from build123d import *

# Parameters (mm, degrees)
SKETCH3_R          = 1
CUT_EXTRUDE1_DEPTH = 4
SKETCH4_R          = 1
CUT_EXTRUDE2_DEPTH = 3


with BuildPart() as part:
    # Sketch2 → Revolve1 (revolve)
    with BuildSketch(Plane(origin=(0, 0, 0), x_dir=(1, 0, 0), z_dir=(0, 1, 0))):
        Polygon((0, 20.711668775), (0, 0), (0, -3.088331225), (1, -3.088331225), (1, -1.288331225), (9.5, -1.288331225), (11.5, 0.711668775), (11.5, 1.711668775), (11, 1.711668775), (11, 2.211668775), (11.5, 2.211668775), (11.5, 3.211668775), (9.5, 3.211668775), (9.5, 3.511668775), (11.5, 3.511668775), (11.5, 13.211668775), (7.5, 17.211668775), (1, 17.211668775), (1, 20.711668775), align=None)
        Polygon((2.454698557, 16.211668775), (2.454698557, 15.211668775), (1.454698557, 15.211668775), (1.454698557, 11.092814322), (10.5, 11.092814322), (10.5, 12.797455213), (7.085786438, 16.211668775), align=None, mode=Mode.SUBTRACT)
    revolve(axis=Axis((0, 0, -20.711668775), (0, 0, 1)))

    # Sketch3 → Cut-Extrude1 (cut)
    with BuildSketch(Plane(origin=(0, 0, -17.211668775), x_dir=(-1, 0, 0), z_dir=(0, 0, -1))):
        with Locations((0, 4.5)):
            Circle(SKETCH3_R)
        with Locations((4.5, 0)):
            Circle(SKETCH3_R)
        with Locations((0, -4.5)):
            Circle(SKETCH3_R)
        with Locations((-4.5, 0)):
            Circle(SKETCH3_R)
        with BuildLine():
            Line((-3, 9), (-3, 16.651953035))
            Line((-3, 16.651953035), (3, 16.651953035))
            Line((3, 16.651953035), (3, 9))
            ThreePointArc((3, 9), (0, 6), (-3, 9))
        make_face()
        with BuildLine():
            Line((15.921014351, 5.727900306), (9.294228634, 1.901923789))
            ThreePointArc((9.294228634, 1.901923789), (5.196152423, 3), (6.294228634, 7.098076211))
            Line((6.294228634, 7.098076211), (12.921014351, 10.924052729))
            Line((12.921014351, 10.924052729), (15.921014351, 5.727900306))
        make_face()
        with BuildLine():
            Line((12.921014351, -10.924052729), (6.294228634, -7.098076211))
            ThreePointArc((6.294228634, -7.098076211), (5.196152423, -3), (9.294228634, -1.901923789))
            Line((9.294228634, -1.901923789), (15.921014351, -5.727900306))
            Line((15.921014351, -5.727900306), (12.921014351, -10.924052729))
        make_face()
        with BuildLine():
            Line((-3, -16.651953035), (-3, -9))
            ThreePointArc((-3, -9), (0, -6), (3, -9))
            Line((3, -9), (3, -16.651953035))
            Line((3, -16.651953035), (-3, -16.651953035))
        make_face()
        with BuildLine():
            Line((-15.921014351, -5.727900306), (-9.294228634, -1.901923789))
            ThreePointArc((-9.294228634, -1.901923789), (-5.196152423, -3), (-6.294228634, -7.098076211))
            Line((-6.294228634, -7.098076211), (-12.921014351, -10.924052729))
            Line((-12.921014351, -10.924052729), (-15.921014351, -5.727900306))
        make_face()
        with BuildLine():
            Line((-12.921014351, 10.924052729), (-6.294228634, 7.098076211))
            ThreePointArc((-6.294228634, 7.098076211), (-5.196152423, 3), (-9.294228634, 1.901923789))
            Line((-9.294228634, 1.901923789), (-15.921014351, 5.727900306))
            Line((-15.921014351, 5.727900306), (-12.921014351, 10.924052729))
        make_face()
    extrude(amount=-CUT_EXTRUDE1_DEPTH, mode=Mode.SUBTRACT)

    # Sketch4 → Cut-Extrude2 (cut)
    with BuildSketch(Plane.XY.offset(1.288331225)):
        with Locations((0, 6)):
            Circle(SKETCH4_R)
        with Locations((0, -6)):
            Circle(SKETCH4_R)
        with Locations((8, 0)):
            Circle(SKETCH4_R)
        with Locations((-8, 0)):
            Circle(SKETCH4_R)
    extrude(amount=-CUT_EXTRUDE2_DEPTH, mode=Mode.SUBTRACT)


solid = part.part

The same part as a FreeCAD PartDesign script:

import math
import FreeCAD as App
import Part
import Sketcher
from FreeCAD import Vector
Q = App.Units.Quantity

doc = App.newDocument("Part")
body = doc.addObject("PartDesign::Body", "Body")

# Sketch on XZ plane
sketch1 = body.newObject("Sketcher::SketchObject", "Sketch")
sketch1.AttachmentSupport = (doc.getObject("XZ_Plane"), [""])
sketch1.MapMode = "FlatFace"
sketch1.addGeometry(Part.LineSegment(Vector(0, -20.71, 0), Vector(0, 3.09, 0)), False)
sketch1.addGeometry(Part.LineSegment(Vector(0, 3.09, 0), Vector(1, 3.09, 0)), False)
sketch1.addGeometry(Part.LineSegment(Vector(1, 3.09, 0), Vector(1, 1.29, 0)), False)
sketch1.addGeometry(Part.LineSegment(Vector(1, 1.29, 0), Vector(9.5, 1.29, 0)), False)
sketch1.addGeometry(Part.LineSegment(Vector(9.5, 1.29, 0), Vector(11.5, -0.71, 0)), False)
sketch1.addGeometry(Part.LineSegment(Vector(11.5, -0.71, 0), Vector(11.5, -1.71, 0)), False)
sketch1.addGeometry(Part.LineSegment(Vector(11.5, -1.71, 0), Vector(11, -1.71, 0)), False)
sketch1.addGeometry(Part.LineSegment(Vector(11, -1.71, 0), Vector(11, -2.21, 0)), False)
sketch1.addGeometry(Part.LineSegment(Vector(11, -2.21, 0), Vector(11.5, -2.21, 0)), False)
sketch1.addGeometry(Part.LineSegment(Vector(11.5, -2.21, 0), Vector(11.5, -3.21, 0)), False)
sketch1.addGeometry(Part.LineSegment(Vector(11.5, -3.21, 0), Vector(9.5, -3.21, 0)), False)
sketch1.addGeometry(Part.LineSegment(Vector(9.5, -3.21, 0), Vector(9.5, -3.51, 0)), False)
sketch1.addGeometry(Part.LineSegment(Vector(9.5, -3.51, 0), Vector(11.5, -3.51, 0)), False)
sketch1.addGeometry(Part.LineSegment(Vector(11.5, -3.51, 0), Vector(11.5, -13.21, 0)), False)
sketch1.addGeometry(Part.LineSegment(Vector(11.5, -13.21, 0), Vector(7.5, -17.21, 0)), False)
sketch1.addGeometry(Part.LineSegment(Vector(7.5, -17.21, 0), Vector(1, -17.21, 0)), False)
sketch1.addGeometry(Part.LineSegment(Vector(1, -17.21, 0), Vector(1, -20.71, 0)), False)
sketch1.addGeometry(Part.LineSegment(Vector(1, -20.71, 0), Vector(0, -20.71, 0)), False)
sketch1.addGeometry(Part.LineSegment(Vector(2.45, -15.21, 0), Vector(2.45, -16.21, 0)), False)
sketch1.addGeometry(Part.LineSegment(Vector(2.45, -16.21, 0), Vector(7.09, -16.21, 0)), False)
sketch1.addGeometry(Part.LineSegment(Vector(7.09, -16.21, 0), Vector(10.5, -12.8, 0)), False)
sketch1.addGeometry(Part.LineSegment(Vector(10.5, -12.8, 0), Vector(10.5, -11.09, 0)), False)
sketch1.addGeometry(Part.LineSegment(Vector(10.5, -11.09, 0), Vector(1.45, -11.09, 0)), False)
sketch1.addGeometry(Part.LineSegment(Vector(1.45, -11.09, 0), Vector(1.45, -15.21, 0)), False)
sketch1.addGeometry(Part.LineSegment(Vector(1.45, -15.21, 0), Vector(2.45, -15.21, 0)), False)
sketch1.addConstraint(Sketcher.Constraint("Coincident", 0, 2, 1, 1))
sketch1.addConstraint(Sketcher.Constraint("Coincident", 1, 2, 2, 1))
sketch1.addConstraint(Sketcher.Constraint("Coincident", 2, 2, 3, 1))
sketch1.addConstraint(Sketcher.Constraint("Coincident", 3, 2, 4, 1))
sketch1.addConstraint(Sketcher.Constraint("Coincident", 4, 2, 5, 1))
sketch1.addConstraint(Sketcher.Constraint("Coincident", 5, 2, 6, 1))
sketch1.addConstraint(Sketcher.Constraint("Coincident", 6, 2, 7, 1))
sketch1.addConstraint(Sketcher.Constraint("Coincident", 7, 2, 8, 1))
sketch1.addConstraint(Sketcher.Constraint("Coincident", 8, 2, 9, 1))
sketch1.addConstraint(Sketcher.Constraint("Coincident", 9, 2, 10, 1))
sketch1.addConstraint(Sketcher.Constraint("Coincident", 10, 2, 11, 1))
sketch1.addConstraint(Sketcher.Constraint("Coincident", 11, 2, 12, 1))
sketch1.addConstraint(Sketcher.Constraint("Coincident", 12, 2, 13, 1))
sketch1.addConstraint(Sketcher.Constraint("Coincident", 13, 2, 14, 1))
sketch1.addConstraint(Sketcher.Constraint("Coincident", 14, 2, 15, 1))
sketch1.addConstraint(Sketcher.Constraint("Coincident", 15, 2, 16, 1))
sketch1.addConstraint(Sketcher.Constraint("Coincident", 16, 2, 17, 1))
sketch1.addConstraint(Sketcher.Constraint("Coincident", 17, 2, 0, 1))
sketch1.addConstraint(Sketcher.Constraint("Coincident", 18, 2, 19, 1))
sketch1.addConstraint(Sketcher.Constraint("Coincident", 19, 2, 20, 1))
sketch1.addConstraint(Sketcher.Constraint("Coincident", 20, 2, 21, 1))
sketch1.addConstraint(Sketcher.Constraint("Coincident", 21, 2, 22, 1))
sketch1.addConstraint(Sketcher.Constraint("Coincident", 22, 2, 23, 1))
sketch1.addConstraint(Sketcher.Constraint("Coincident", 23, 2, 24, 1))
sketch1.addConstraint(Sketcher.Constraint("Coincident", 24, 2, 18, 1))
sketch1.addConstraint(Sketcher.Constraint("Vertical", 0))
sketch1.addConstraint(Sketcher.Constraint("Horizontal", 1))
sketch1.addConstraint(Sketcher.Constraint("Vertical", 2))
sketch1.addConstraint(Sketcher.Constraint("Horizontal", 3))
sketch1.addConstraint(Sketcher.Constraint("Vertical", 5))
sketch1.addConstraint(Sketcher.Constraint("Horizontal", 6))
sketch1.addConstraint(Sketcher.Constraint("Vertical", 7))
sketch1.addConstraint(Sketcher.Constraint("Horizontal", 8))
sketch1.addConstraint(Sketcher.Constraint("Vertical", 9))
sketch1.addConstraint(Sketcher.Constraint("Horizontal", 10))
sketch1.addConstraint(Sketcher.Constraint("Vertical", 11))
sketch1.addConstraint(Sketcher.Constraint("Horizontal", 12))
sketch1.addConstraint(Sketcher.Constraint("Vertical", 13))
sketch1.addConstraint(Sketcher.Constraint("Horizontal", 15))
sketch1.addConstraint(Sketcher.Constraint("Vertical", 16))
sketch1.addConstraint(Sketcher.Constraint("Horizontal", 17))
sketch1.addConstraint(Sketcher.Constraint("Vertical", 18))
sketch1.addConstraint(Sketcher.Constraint("Horizontal", 19))
sketch1.addConstraint(Sketcher.Constraint("Vertical", 21))
sketch1.addConstraint(Sketcher.Constraint("Horizontal", 22))
sketch1.addConstraint(Sketcher.Constraint("Vertical", 23))
sketch1.addConstraint(Sketcher.Constraint("Horizontal", 24))
sketch1.addConstraint(Sketcher.Constraint("PointOnObject", 0, 2, -2))
sketch1.addConstraint(Sketcher.Constraint("Perpendicular", 4, 14))
sketch1.addConstraint(Sketcher.Constraint("Parallel", 14, 20))
sketch1.addConstraint(Sketcher.Constraint("Vertical", 5, 2, 8, 2))
sketch1.addConstraint(Sketcher.Constraint("Vertical", 3, 2, 10, 2))
sketch1.addConstraint(Sketcher.Constraint("Vertical", 9, 2, 12, 2))
sketch1.addConstraint(Sketcher.Constraint("Vertical", 2, 2, 15, 2))
sketch1.addConstraint(Sketcher.Constraint("Equal", 17, 24))
sketch1.addConstraint(Sketcher.Constraint("Equal", 24, 5))
sketch1.addConstraint(Sketcher.Constraint("Equal", 8, 7))
sketch1.addConstraint(Sketcher.Constraint("Equal", 5, 9))
sketch1.addConstraint(Sketcher.Constraint("Equal", 9, 18))
sketch1.addConstraint(Sketcher.Constraint("DistanceX", 1, 1, 1, 2, 1.0))
sketch1.addConstraint(Sketcher.Constraint("DistanceX", 10, 2, 10, 1, 2.0))
sketch1.addConstraint(Sketcher.Constraint("Angle", 4, Q("-45 deg")))
sketch1.addConstraint(Sketcher.Constraint("DistanceX", 3, 1, 3, 2, 8.5))
sketch1.addConstraint(Sketcher.Constraint("DistanceX", 6, 2, 6, 1, 0.5))
sketch1.addConstraint(Sketcher.Constraint("DistanceX", 15, 2, 15, 1, 6.5))
sketch1.addConstraint(Sketcher.Constraint("DistanceY", 0, 1, 0, 2, 23.8))
sketch1.addConstraint(Sketcher.Constraint("DistanceY", 2, 2, 2, 1, 1.8))
sketch1.addConstraint(Sketcher.Constraint("DistanceY", 11, 2, 11, 1, 0.3))
sketch1.addConstraint(Sketcher.Constraint("DistanceY", 13, 2, 13, 1, 9.7))
sketch1.addConstraint(Sketcher.Constraint("DistanceY", 15, 2, 18, 2, 1.0))
sketch1.addConstraint(Sketcher.Constraint("DistanceX", 20, 2, 13, 2, 1.0))
sketch1.addConstraint(Sketcher.Constraint("DistanceX", 22, 2, 22, 1, 9.045301))
sketch1.addConstraint(Sketcher.Constraint("DistanceY", 21, 1, 21, 2, 1.704641))
sketch1.addConstraint(Sketcher.Constraint("DistanceX", 19, 1, 19, 2, 4.631088))
sketch1.addConstraint(Sketcher.Constraint("DistanceY", -1, 1, 0, 2, 3.088331))
revolution = body.newObject("PartDesign::Revolution", "Revolution")
revolution.Profile = sketch1
revolution.ReferenceAxis = (sketch1, ["V_Axis"])
revolution.Angle = 360

# Sketch on XY plane
sketch2 = body.newObject("Sketcher::SketchObject", "Sketch001")
sketch2.AttachmentSupport = (doc.getObject("XY_Plane"), [""])
sketch2.MapMode = "FlatFace"
sketch2.AttachmentOffset = App.Placement(Vector(0, 0, -17.211669), App.Rotation())
sketch2.addGeometry(Part.Circle(Vector(0, 4.5, 0), Vector(0, 0, 1), 1), False)
sketch2.addGeometry(Part.Circle(Vector(-4.5, 0, 0), Vector(0, 0, 1), 1), False)
sketch2.addGeometry(Part.Circle(Vector(0, -4.5, 0), Vector(0, 0, 1), 1), False)
sketch2.addGeometry(Part.Circle(Vector(4.5, 0, 0), Vector(0, 0, 1), 1), False)
sketch2.addGeometry(Part.LineSegment(Vector(3, 16.7, 0), Vector(3, 9, 0)), False)
sketch2.addGeometry(Part.ArcOfCircle(Part.Circle(Vector(0, 9, 0), Vector(0, 0, 1), 3), math.radians(180), math.radians(360)), False)
sketch2.addGeometry(Part.LineSegment(Vector(-3, 9, 0), Vector(-3, 16.7, 0)), False)
sketch2.addGeometry(Part.LineSegment(Vector(-3, 16.7, 0), Vector(3, 16.7, 0)), False)
sketch2.addGeometry(Part.LineSegment(Vector(-9.3, 1.9, 0), Vector(-15.9, 5.7, 0)), False)
sketch2.addGeometry(Part.LineSegment(Vector(-15.9, 5.7, 0), Vector(-12.9, 10.9, 0)), False)
sketch2.addGeometry(Part.LineSegment(Vector(-12.9, 10.9, 0), Vector(-6.3, 7.1, 0)), False)
sketch2.addGeometry(Part.ArcOfCircle(Part.Circle(Vector(-7.8, 4.5, 0), Vector(0, 0, 1), 3), math.radians(-120), math.radians(60)), False)
sketch2.addGeometry(Part.LineSegment(Vector(-6.3, -7.1, 0), Vector(-12.9, -10.9, 0)), False)
sketch2.addGeometry(Part.LineSegment(Vector(-12.9, -10.9, 0), Vector(-15.9, -5.7, 0)), False)
sketch2.addGeometry(Part.LineSegment(Vector(-15.9, -5.7, 0), Vector(-9.3, -1.9, 0)), False)
sketch2.addGeometry(Part.ArcOfCircle(Part.Circle(Vector(-7.8, -4.5, 0), Vector(0, 0, 1), 3), math.radians(-60), math.radians(120)), False)
sketch2.addGeometry(Part.LineSegment(Vector(3, -9, 0), Vector(3, -16.7, 0)), False)
sketch2.addGeometry(Part.LineSegment(Vector(3, -16.7, 0), Vector(-3, -16.7, 0)), False)
sketch2.addGeometry(Part.LineSegment(Vector(-3, -16.7, 0), Vector(-3, -9, 0)), False)
sketch2.addGeometry(Part.ArcOfCircle(Part.Circle(Vector(0, -9, 0), Vector(0, 0, 1), 3), math.radians(0), math.radians(180)), False)
sketch2.addGeometry(Part.LineSegment(Vector(9.3, -1.9, 0), Vector(15.9, -5.7, 0)), False)
sketch2.addGeometry(Part.LineSegment(Vector(15.9, -5.7, 0), Vector(12.9, -10.9, 0)), False)
sketch2.addGeometry(Part.LineSegment(Vector(12.9, -10.9, 0), Vector(6.3, -7.1, 0)), False)
sketch2.addGeometry(Part.ArcOfCircle(Part.Circle(Vector(7.8, -4.5, 0), Vector(0, 0, 1), 3), math.radians(60), math.radians(240)), False)
sketch2.addGeometry(Part.LineSegment(Vector(6.3, 7.1, 0), Vector(12.9, 10.9, 0)), False)
sketch2.addGeometry(Part.LineSegment(Vector(12.9, 10.9, 0), Vector(15.9, 5.7, 0)), False)
sketch2.addGeometry(Part.LineSegment(Vector(15.9, 5.7, 0), Vector(9.3, 1.9, 0)), False)
sketch2.addGeometry(Part.ArcOfCircle(Part.Circle(Vector(7.8, 4.5, 0), Vector(0, 0, 1), 3), math.radians(120), math.radians(300)), False)
sketch2.addConstraint(Sketcher.Constraint("Tangent", 4, 2, 5, 2))
sketch2.addConstraint(Sketcher.Constraint("Tangent", 5, 1, 6, 1))
sketch2.addConstraint(Sketcher.Constraint("Coincident", 6, 2, 7, 1))
sketch2.addConstraint(Sketcher.Constraint("Coincident", 7, 2, 4, 1))
sketch2.addConstraint(Sketcher.Constraint("Coincident", 8, 2, 9, 1))
sketch2.addConstraint(Sketcher.Constraint("Coincident", 9, 2, 10, 1))
sketch2.addConstraint(Sketcher.Constraint("Tangent", 10, 2, 11, 2))
sketch2.addConstraint(Sketcher.Constraint("Tangent", 11, 1, 8, 1))
sketch2.addConstraint(Sketcher.Constraint("Coincident", 12, 2, 13, 1))
sketch2.addConstraint(Sketcher.Constraint("Coincident", 13, 2, 14, 1))
sketch2.addConstraint(Sketcher.Constraint("Tangent", 14, 2, 15, 2))
sketch2.addConstraint(Sketcher.Constraint("Tangent", 15, 1, 12, 1))
sketch2.addConstraint(Sketcher.Constraint("Coincident", 16, 2, 17, 1))
sketch2.addConstraint(Sketcher.Constraint("Coincident", 17, 2, 18, 1))
sketch2.addConstraint(Sketcher.Constraint("Tangent", 18, 2, 19, 2))
sketch2.addConstraint(Sketcher.Constraint("Tangent", 19, 1, 16, 1))
sketch2.addConstraint(Sketcher.Constraint("Coincident", 20, 2, 21, 1))
sketch2.addConstraint(Sketcher.Constraint("Coincident", 21, 2, 22, 1))
sketch2.addConstraint(Sketcher.Constraint("Tangent", 22, 2, 23, 2))
sketch2.addConstraint(Sketcher.Constraint("Tangent", 23, 1, 20, 1))
sketch2.addConstraint(Sketcher.Constraint("Coincident", 24, 2, 25, 1))
sketch2.addConstraint(Sketcher.Constraint("Coincident", 25, 2, 26, 1))
sketch2.addConstraint(Sketcher.Constraint("Tangent", 26, 2, 27, 2))
sketch2.addConstraint(Sketcher.Constraint("Tangent", 27, 1, 24, 1))
sketch2.addConstraint(Sketcher.Constraint("Vertical", 4))
sketch2.addConstraint(Sketcher.Constraint("Vertical", 6))
sketch2.addConstraint(Sketcher.Constraint("Horizontal", 7))
sketch2.addConstraint(Sketcher.Constraint("Vertical", 16))
sketch2.addConstraint(Sketcher.Constraint("Horizontal", 17))
sketch2.addConstraint(Sketcher.Constraint("Vertical", 18))
sketch2.addConstraint(Sketcher.Constraint("Equal", 0, 1))
sketch2.addConstraint(Sketcher.Constraint("Equal", 1, 2))
sketch2.addConstraint(Sketcher.Constraint("Equal", 2, 3))
sketch2.addConstraint(Sketcher.Constraint("Equal", 5, 11))
sketch2.addConstraint(Sketcher.Constraint("Equal", 11, 15))
sketch2.addConstraint(Sketcher.Constraint("Equal", 15, 19))
sketch2.addConstraint(Sketcher.Constraint("Equal", 19, 23))
sketch2.addConstraint(Sketcher.Constraint("Equal", 23, 27))
sketch2.addConstraint(Sketcher.Constraint("Symmetric", 0, 3, 2, 3, -1, 1))
sketch2.addConstraint(Sketcher.Constraint("Symmetric", 1, 3, 3, 3, -1, 1))
sketch2.addConstraint(Sketcher.Constraint("Symmetric", 5, 3, 19, 3, -1, 1))
sketch2.addConstraint(Sketcher.Constraint("Symmetric", 11, 3, 23, 3, -1, 1))
sketch2.addConstraint(Sketcher.Constraint("Symmetric", 15, 3, 27, 3, -1, 1))
sketch2.addConstraint(Sketcher.Constraint("Symmetric", 8, 2, 20, 2, -1, 1))
sketch2.addConstraint(Sketcher.Constraint("Symmetric", 9, 2, 21, 2, -1, 1))
sketch2.addConstraint(Sketcher.Constraint("Symmetric", 12, 2, 24, 2, -1, 1))
sketch2.addConstraint(Sketcher.Constraint("Symmetric", 13, 2, 25, 2, -1, 1))
sketch2.addConstraint(Sketcher.Constraint("Symmetric", 15, 3, 23, 3, -2))
sketch2.addConstraint(Sketcher.Constraint("Symmetric", 13, 2, 20, 2, -2))
sketch2.addConstraint(Sketcher.Constraint("Symmetric", 12, 2, 21, 2, -2))
sketch2.addConstraint(Sketcher.Constraint("Symmetric", 7, 2, 16, 2, -1))
sketch2.addConstraint(Sketcher.Constraint("PointOnObject", 0, 3, -2))
sketch2.addConstraint(Sketcher.Constraint("PointOnObject", 1, 3, -1))
sketch2.addConstraint(Sketcher.Constraint("Perpendicular", 8, 9))
sketch2.addConstraint(Sketcher.Constraint("Perpendicular", 9, 10))
sketch2.addConstraint(Sketcher.Constraint("Horizontal", 0, 3, 11, 3))
sketch2.addConstraint(Sketcher.Constraint("Diameter", 0, 2.0))
sketch2.addConstraint(Sketcher.Constraint("Radius", 5, 3.0))
sketch2.addConstraint(Sketcher.Constraint("Angle", 8, Q("150 deg")))
sketch2.addConstraint(Sketcher.Constraint("DistanceY", -1, 1, 5, 3, 9.0))
sketch2.addConstraint(Sketcher.Constraint("DistanceY", 2, 3, 0, 3, 9.0))
sketch2.addConstraint(Sketcher.Constraint("DistanceX", 1, 3, 3, 3, 9.0))
sketch2.addConstraint(Sketcher.Constraint("DistanceY", -1, 1, 8, 2, 5.7279))
sketch2.addConstraint(Sketcher.Constraint("DistanceY", 9, 2, 6, 2, 5.7279))
sketch2.addConstraint(Sketcher.Constraint("DistanceX", 11, 3, -1, 1, 7.794229))
pocket1 = body.newObject("PartDesign::Pocket", "Pocket")
pocket1.Profile = sketch2
pocket1.Length = 4
pocket1.Reversed = True

# Sketch on XY plane
sketch3 = body.newObject("Sketcher::SketchObject", "Sketch002")
sketch3.AttachmentSupport = (doc.getObject("XY_Plane"), [""])
sketch3.MapMode = "FlatFace"
sketch3.AttachmentOffset = App.Placement(Vector(0, 0, 1.288331), App.Rotation())
sketch3.addGeometry(Part.Circle(Vector(0, 6, 0), Vector(0, 0, 1), 1), False)
sketch3.addGeometry(Part.Circle(Vector(0, -6, 0), Vector(0, 0, 1), 1), False)
sketch3.addGeometry(Part.Circle(Vector(8, 0, 0), Vector(0, 0, 1), 1), False)
sketch3.addGeometry(Part.Circle(Vector(-8, 0, 0), Vector(0, 0, 1), 1), False)
sketch3.addConstraint(Sketcher.Constraint("Equal", 0, 1))
sketch3.addConstraint(Sketcher.Constraint("Equal", 1, 2))
sketch3.addConstraint(Sketcher.Constraint("Equal", 2, 3))
sketch3.addConstraint(Sketcher.Constraint("Symmetric", 0, 3, 1, 3, -1, 1))
sketch3.addConstraint(Sketcher.Constraint("Symmetric", 2, 3, 3, 3, -1, 1))
sketch3.addConstraint(Sketcher.Constraint("PointOnObject", 0, 3, -2))
sketch3.addConstraint(Sketcher.Constraint("PointOnObject", 2, 3, -1))
sketch3.addConstraint(Sketcher.Constraint("Diameter", 0, 2.0))
sketch3.addConstraint(Sketcher.Constraint("DistanceY", -1, 1, 0, 3, 6.0))
sketch3.addConstraint(Sketcher.Constraint("DistanceX", -1, 1, 2, 3, 8.0))
pocket2 = body.newObject("PartDesign::Pocket", "Pocket001")
pocket2.Profile = sketch3
pocket2.Length = 3

doc.recompute()
